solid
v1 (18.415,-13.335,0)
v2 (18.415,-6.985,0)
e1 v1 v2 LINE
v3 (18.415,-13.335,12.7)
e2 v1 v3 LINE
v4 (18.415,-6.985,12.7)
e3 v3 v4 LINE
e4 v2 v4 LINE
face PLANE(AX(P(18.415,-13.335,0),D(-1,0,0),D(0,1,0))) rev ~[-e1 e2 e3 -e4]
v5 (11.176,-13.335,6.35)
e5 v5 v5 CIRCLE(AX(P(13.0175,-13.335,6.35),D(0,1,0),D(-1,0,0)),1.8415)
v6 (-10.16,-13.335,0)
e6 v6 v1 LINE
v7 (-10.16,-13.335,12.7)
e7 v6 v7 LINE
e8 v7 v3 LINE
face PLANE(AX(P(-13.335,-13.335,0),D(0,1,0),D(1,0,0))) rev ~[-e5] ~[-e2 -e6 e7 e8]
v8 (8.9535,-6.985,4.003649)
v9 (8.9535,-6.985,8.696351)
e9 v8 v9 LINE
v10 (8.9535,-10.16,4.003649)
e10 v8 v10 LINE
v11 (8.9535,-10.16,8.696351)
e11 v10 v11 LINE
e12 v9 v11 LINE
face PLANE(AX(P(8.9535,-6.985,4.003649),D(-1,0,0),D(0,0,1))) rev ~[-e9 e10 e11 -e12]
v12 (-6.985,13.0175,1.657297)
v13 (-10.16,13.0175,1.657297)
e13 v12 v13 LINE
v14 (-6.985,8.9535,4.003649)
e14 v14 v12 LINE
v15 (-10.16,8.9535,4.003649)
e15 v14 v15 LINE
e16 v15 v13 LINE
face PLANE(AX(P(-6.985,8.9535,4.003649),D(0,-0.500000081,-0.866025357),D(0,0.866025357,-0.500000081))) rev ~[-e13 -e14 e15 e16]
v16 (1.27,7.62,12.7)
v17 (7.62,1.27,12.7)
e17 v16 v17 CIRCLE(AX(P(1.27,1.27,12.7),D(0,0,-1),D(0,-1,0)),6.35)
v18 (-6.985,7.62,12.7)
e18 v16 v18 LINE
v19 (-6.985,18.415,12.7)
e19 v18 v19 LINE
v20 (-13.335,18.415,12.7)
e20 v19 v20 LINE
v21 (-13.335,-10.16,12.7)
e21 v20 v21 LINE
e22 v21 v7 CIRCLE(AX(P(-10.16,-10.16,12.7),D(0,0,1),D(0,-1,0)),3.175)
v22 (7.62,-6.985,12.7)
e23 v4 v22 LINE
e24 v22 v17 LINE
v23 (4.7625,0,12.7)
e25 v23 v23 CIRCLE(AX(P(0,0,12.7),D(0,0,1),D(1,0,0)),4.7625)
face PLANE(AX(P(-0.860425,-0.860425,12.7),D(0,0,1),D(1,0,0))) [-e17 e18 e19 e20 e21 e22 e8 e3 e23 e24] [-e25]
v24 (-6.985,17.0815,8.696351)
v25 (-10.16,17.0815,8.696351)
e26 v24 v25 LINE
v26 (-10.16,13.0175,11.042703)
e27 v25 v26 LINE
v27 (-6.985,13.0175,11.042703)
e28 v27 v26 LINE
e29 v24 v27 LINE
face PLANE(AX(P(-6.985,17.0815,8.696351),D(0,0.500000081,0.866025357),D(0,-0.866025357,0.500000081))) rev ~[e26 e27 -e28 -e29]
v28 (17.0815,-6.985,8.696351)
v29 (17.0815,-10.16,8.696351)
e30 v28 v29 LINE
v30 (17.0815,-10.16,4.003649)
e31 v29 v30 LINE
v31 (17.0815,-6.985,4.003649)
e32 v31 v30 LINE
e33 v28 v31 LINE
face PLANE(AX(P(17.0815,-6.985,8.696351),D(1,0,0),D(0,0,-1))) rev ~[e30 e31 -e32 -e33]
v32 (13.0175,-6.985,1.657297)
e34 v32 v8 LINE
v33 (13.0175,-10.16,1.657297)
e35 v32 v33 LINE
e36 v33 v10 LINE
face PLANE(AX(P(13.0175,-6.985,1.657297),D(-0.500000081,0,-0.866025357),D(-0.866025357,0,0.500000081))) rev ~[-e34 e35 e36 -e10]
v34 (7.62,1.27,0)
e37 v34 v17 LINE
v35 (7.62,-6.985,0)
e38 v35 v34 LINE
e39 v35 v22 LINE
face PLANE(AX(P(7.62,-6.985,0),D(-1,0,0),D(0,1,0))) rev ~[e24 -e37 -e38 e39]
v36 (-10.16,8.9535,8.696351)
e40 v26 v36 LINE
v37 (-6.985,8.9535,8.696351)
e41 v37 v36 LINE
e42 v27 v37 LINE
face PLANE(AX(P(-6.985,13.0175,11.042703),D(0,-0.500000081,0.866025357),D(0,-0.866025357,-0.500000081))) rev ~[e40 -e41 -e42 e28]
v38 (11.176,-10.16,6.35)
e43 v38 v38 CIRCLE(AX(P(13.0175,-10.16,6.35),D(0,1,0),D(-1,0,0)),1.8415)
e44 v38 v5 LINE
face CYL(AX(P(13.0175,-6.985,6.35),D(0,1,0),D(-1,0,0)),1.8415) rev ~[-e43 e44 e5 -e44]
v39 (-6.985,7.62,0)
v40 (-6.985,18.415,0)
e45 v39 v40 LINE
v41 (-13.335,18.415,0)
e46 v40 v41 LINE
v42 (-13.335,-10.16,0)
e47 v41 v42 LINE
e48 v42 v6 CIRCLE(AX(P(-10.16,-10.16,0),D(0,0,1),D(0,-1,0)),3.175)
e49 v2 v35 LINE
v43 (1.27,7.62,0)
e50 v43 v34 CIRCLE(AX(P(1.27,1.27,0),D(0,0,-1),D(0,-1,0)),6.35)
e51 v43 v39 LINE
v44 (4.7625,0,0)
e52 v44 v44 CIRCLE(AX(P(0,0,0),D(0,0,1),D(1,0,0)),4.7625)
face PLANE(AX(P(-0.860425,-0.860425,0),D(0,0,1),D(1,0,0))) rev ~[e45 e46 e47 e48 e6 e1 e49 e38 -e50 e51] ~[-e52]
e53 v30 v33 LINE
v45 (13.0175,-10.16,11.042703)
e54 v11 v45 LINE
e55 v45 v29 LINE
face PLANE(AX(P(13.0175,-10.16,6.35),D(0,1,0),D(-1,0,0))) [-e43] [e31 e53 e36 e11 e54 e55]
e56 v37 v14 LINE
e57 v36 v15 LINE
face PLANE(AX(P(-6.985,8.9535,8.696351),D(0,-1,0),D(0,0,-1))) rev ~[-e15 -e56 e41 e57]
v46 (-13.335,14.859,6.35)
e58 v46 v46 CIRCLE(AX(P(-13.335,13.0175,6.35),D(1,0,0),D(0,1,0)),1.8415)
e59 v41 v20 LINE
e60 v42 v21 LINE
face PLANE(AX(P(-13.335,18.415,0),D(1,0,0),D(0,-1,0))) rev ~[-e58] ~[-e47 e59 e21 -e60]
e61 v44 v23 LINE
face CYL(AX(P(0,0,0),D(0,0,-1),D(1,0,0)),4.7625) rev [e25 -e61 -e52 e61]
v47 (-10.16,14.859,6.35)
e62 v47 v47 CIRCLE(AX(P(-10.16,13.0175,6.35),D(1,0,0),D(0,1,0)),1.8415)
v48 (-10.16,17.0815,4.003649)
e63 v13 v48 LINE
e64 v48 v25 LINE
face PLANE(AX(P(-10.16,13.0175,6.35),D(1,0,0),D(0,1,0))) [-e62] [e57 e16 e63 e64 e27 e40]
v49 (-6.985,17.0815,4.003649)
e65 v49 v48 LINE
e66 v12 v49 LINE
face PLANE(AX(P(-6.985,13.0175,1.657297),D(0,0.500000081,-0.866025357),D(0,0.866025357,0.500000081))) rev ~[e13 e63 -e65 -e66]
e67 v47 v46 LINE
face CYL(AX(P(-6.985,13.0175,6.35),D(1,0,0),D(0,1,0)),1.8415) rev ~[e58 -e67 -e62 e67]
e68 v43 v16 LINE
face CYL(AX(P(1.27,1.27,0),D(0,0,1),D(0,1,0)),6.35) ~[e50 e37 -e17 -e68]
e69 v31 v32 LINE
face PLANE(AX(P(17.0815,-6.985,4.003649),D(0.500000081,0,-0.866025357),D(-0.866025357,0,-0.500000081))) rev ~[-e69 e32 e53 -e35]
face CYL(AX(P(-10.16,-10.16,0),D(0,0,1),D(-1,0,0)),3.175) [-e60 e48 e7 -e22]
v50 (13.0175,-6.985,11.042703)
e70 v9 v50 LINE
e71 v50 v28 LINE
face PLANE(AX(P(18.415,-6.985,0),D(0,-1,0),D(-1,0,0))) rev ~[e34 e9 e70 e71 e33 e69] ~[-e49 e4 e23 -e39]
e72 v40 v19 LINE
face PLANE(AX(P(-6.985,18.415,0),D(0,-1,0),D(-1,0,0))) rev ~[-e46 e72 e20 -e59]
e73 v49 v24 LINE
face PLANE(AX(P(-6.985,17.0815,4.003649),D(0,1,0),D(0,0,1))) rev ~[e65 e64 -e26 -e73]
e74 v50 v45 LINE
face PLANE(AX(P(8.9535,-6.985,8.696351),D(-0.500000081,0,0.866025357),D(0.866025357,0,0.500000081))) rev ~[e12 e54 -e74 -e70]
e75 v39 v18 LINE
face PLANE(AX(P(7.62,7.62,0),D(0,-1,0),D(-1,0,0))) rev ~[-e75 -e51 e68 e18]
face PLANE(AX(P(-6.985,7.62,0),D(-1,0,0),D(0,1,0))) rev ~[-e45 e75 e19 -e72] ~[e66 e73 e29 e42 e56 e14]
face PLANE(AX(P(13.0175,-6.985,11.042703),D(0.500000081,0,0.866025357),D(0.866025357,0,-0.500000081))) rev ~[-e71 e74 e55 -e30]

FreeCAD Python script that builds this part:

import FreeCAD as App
import Part
import Sketcher
from FreeCAD import Vector
Q = App.Units.Quantity


def edges_at(feature, points):
    """Names of the edges that pass closest to the given points."""
    edges = feature.Shape.Edges
    near = lambda p: min(range(len(edges)), key=lambda i: edges[i].distToShape(Part.Vertex(*p))[0])
    return sorted({f"Edge{near(p) + 1}" for p in points})

doc = App.newDocument("Part")
params = doc.addObject("Spreadsheet::Sheet", "Params")
for row, (alias, value) in enumerate([
    ("sketch1_diameter", "0.375 in"),
    ("sketch1_width", "1.25 in"),
    ("sketch1_width2", "0.425 in"),
    ("pad1_length", "0.5 in"),
    ("fillet_radius", "0.25 in"),
    ("fillet2_radius", "0.125 in"),
    ("sketch2_diameter", "0.145 in"),
    ("pocket1_length", "1 in"),
    ("pocket2_length", "0.125 in"),
    ("sketch4_diameter", "0.145 in"),
    ("pocket3_length", "1 in"),
    ("pocket4_length", "0.125 in"),
], start=1):
    params.set(f"A{row}", alias)
    params.set(f"B{row}", "=" + value)
    params.setAlias(f"B{row}", alias)

body = doc.addObject("PartDesign::Body", "Body")

sketch1 = body.newObject("Sketcher::SketchObject", "Sketch")
sketch1.AttachmentSupport = (doc.getObject("XY_Plane"), [""])
sketch1.MapMode = "FlatFace"
sketch1.addGeometry([
    Part.LineSegment(Vector(-13.3, 18.4, 0), Vector(-13.3, -13.3, 0)),
    Part.LineSegment(Vector(-13.3, -13.3, 0), Vector(18.4, -13.3, 0)),
    Part.LineSegment(Vector(18.4, -13.3, 0), Vector(18.4, -7, 0)),
    Part.LineSegment(Vector(18.4, -7, 0), Vector(7.6, -7, 0)),
    Part.LineSegment(Vector(7.6, -7, 0), Vector(7.6, 7.6, 0)),
    Part.LineSegment(Vector(7.6, 7.6, 0), Vector(-7, 7.6, 0)),
    Part.LineSegment(Vector(-7, 7.6, 0), Vector(-7, 18.4, 0)),
    Part.LineSegment(Vector(-7, 18.4, 0), Vector(-13.3, 18.4, 0)),
    Part.Circle(Vector(0, 0, 0), Vector(0, 0, 1), 4.8),
], False)
sketch1.addConstraint([
    Sketcher.Constraint("Coincident", 0, 2, 1, 1),
    Sketcher.Constraint("Coincident", 1, 2, 2, 1),
    Sketcher.Constraint("Coincident", 2, 2, 3, 1),
    Sketcher.Constraint("Coincident", 3, 2, 4, 1),
    Sketcher.Constraint("Coincident", 4, 2, 5, 1),
    Sketcher.Constraint("Coincident", 5, 2, 6, 1),
    Sketcher.Constraint("Coincident", 6, 2, 7, 1),
    Sketcher.Constraint("Coincident", 7, 2, 0, 1),
    Sketcher.Constraint("Vertical", 0),
    Sketcher.Constraint("Horizontal", 1),
    Sketcher.Constraint("Vertical", 2),
    Sketcher.Constraint("Horizontal", 3),
    Sketcher.Constraint("Vertical", 4),
    Sketcher.Constraint("Horizontal", 5),
    Sketcher.Constraint("Vertical", 6),
    Sketcher.Constraint("Horizontal", 7),
    Sketcher.Constraint("Coincident", 8, 3, -1, 1),
    Sketcher.Constraint("Equal", 1, 0),
    Sketcher.Constraint("Equal", 7, 2),
    Sketcher.Constraint("Equal", 5, 4),
    Sketcher.Constraint("Diameter", 8, Q("0.375 in")),
    Sketcher.Constraint("DistanceX", 5, 2, 2, 2, Q("1 in")),
    Sketcher.Constraint("DistanceX", 1, 1, 1, 2, Q("1.25 in")),
    Sketcher.Constraint("DistanceX", -1, 1, 3, 2, Q("0.3 in")),
    Sketcher.Constraint("DistanceY", -1, 1, 4, 2, Q("0.3 in")),
    Sketcher.Constraint("DistanceX", 3, 2, 3, 1, Q("0.425 in")),
])
sketch1.setExpression("Constraints[20]", "Params.sketch1_diameter")
sketch1.setExpression("Constraints[22]", "Params.sketch1_width")
sketch1.setExpression("Constraints[25]", "Params.sketch1_width2")
pad1 = body.newObject("PartDesign::Pad", "Pad")
pad1.Profile = sketch1
pad1.setExpression("Length", "Params.pad1_length")
doc.recompute()

fillet = body.newObject("PartDesign::Fillet", "Fillet")
fillet.Base = (pad1, edges_at(pad1, [(7.62, 7.62, 6.35)]))
fillet.setExpression("Radius", "Params.fillet_radius")
doc.recompute()

fillet2 = body.newObject("PartDesign::Fillet", "Fillet001")
fillet2.Base = (fillet, edges_at(fillet, [(-13.335, -13.335, 6.35)]))
fillet2.setExpression("Radius", "Params.fillet2_radius")

sketch2 = body.newObject("Sketcher::SketchObject", "Sketch001")
sketch2.AttachmentSupport = (doc.getObject("XZ_Plane"), [""])
sketch2.MapMode = "FlatFace"
sketch2.AttachmentOffset = App.Placement(Vector(0, 0, 0.275 * 25.4), App.Rotation())
sketch2.addGeometry(Part.Circle(Vector(13, 6.3, 0), Vector(0, 0, 1), 1.8), False)
sketch2.addConstraint([
    Sketcher.Constraint("Diameter", 0, Q("0.145 in")),
    Sketcher.Constraint("DistanceY", -1, 1, 0, 3, Q("0.25 in")),
    Sketcher.Constraint("DistanceX", -1, 1, 0, 3, Q("0.5125 in")),
])
sketch2.setExpression("Constraints[0]", "Params.sketch2_diameter")
pocket1 = body.newObject("PartDesign::Pocket", "Pocket")
pocket1.Profile = sketch2
pocket1.setExpression("Length", "Params.pocket1_length")
pocket1.Reversed = True

sketch3 = body.newObject("Sketcher::SketchObject", "Sketch002")
sketch3.AttachmentSupport = (doc.getObject("XZ_Plane"), [""])
sketch3.MapMode = "FlatFace"
sketch3.AttachmentOffset = App.Placement(Vector(0, 0, 0.275 * 25.4), App.Rotation())
sketch3.addGeometry([
    Part.LineSegment(Vector(17.1, 4, 0), Vector(13, 1.7, 0)),
    Part.LineSegment(Vector(13, 1.7, 0), Vector(9, 4, 0)),
    Part.LineSegment(Vector(9, 4, 0), Vector(9, 8.7, 0)),
    Part.LineSegment(Vector(9, 8.7, 0), Vector(13, 11, 0)),
    Part.LineSegment(Vector(13, 11, 0), Vector(17.1, 8.7, 0)),
    Part.LineSegment(Vector(17.1, 8.7, 0), Vector(17.1, 4, 0)),
], False)
sketch3.addConstraint([
    Sketcher.Constraint("Coincident", 0, 2, 1, 1),
    Sketcher.Constraint("Coincident", 1, 2, 2, 1),
    Sketcher.Constraint("Coincident", 2, 2, 3, 1),
    Sketcher.Constraint("Coincident", 3, 2, 4, 1),
    Sketcher.Constraint("Coincident", 4, 2, 5, 1),
    Sketcher.Constraint("Coincident", 5, 2, 0, 1),
    Sketcher.Constraint("Vertical", 2),
    Sketcher.Constraint("Vertical", 5),
    Sketcher.Constraint("Parallel", 0, 3),
    Sketcher.Constraint("Parallel", 1, 4),
    Sketcher.Constraint("Horizontal", 2, 2, 4, 2),
    Sketcher.Constraint("Horizontal", 1, 2, 5, 2),
    Sketcher.Constraint("Vertical", 0, 2, 3, 2),
    Sketcher.Constraint("Angle", 0, Q("-149.999995 deg")),
    Sketcher.Constraint("DistanceX", 1, 2, 0, 2, Q("0.16 in")),
    Sketcher.Constraint("DistanceY", 2, 1, 2, 2, 4.692702),
    Sketcher.Constraint("DistanceX", -1, 1, 0, 2, Q("0.5125 in")),
    Sketcher.Constraint("DistanceY", -1, 1, 1, 2, 4.003649),
])
pocket2 = body.newObject("PartDesign::Pocket", "Pocket001")
pocket2.Profile = sketch3
pocket2.setExpression("Length", "Params.pocket2_length")
pocket2.Reversed = True

sketch4 = body.newObject("Sketcher::SketchObject", "Sketch003")
sketch4.AttachmentSupport = (doc.getObject("YZ_Plane"), [""])
sketch4.MapMode = "FlatFace"
sketch4.AttachmentOffset = App.Placement(Vector(0, 0, -0.275 * 25.4), App.Rotation())
sketch4.addGeometry(Part.Circle(Vector(13, 6.3, 0), Vector(0, 0, 1), 1.8), False)
sketch4.addConstraint([
    Sketcher.Constraint("Diameter", 0, Q("0.145 in")),
    Sketcher.Constraint("DistanceY", -1, 1, 0, 3, Q("0.25 in")),
    Sketcher.Constraint("DistanceX", -1, 1, 0, 3, Q("0.5125 in")),
])
sketch4.setExpression("Constraints[0]", "Params.sketch4_diameter")
pocket3 = body.newObject("PartDesign::Pocket", "Pocket002")
pocket3.Profile = sketch4
pocket3.setExpression("Length", "Params.pocket3_length")

sketch5 = body.newObject("Sketcher::SketchObject", "Sketch004")
sketch5.AttachmentSupport = (doc.getObject("YZ_Plane"), [""])
sketch5.MapMode = "FlatFace"
sketch5.AttachmentOffset = App.Placement(Vector(0, 0, -0.275 * 25.4), App.Rotation())
sketch5.addGeometry([
    Part.LineSegment(Vector(9, 8.7, 0), Vector(9, 4, 0)),
    Part.LineSegment(Vector(9, 4, 0), Vector(13, 1.7, 0)),
    Part.LineSegment(Vector(13, 1.7, 0), Vector(17.1, 4, 0)),
    Part.LineSegment(Vector(17.1, 4, 0), Vector(17.1, 8.7, 0)),
    Part.LineSegment(Vector(17.1, 8.7, 0), Vector(13, 11, 0)),
    Part.LineSegment(Vector(13, 11, 0), Vector(9, 8.7, 0)),
], False)
sketch5.addConstraint([
    Sketcher.Constraint("Coincident", 0, 2, 1, 1),
    Sketcher.Constraint("Coincident", 1, 2, 2, 1),
    Sketcher.Constraint("Coincident", 2, 2, 3, 1),
    Sketcher.Constraint("Coincident", 3, 2, 4, 1),
    Sketcher.Constraint("Coincident", 4, 2, 5, 1),
    Sketcher.Constraint("Coincident", 5, 2, 0, 1),
    Sketcher.Constraint("Vertical", 0),
    Sketcher.Constraint("Vertical", 3),
    Sketcher.Constraint("Parallel", 1, 4),
    Sketcher.Constraint("Parallel", 2, 5),
    Sketcher.Constraint("Horizontal", 0, 2, 2, 2),
    Sketcher.Constraint("Horizontal", 3, 2, 5, 2),
    Sketcher.Constraint("Vertical", 1, 2, 4, 2),
    Sketcher.Constraint("Angle", 1, Q("-30.000005 deg")),
    Sketcher.Constraint("DistanceX", 0, 2, 1, 2, Q("0.16 in")),
    Sketcher.Constraint("DistanceY", 0, 2, 0, 1, 4.692702),
    Sketcher.Constraint("DistanceX", -1, 1, 0, 2, Q("0.3525 in")),
    Sketcher.Constraint("DistanceY", -1, 1, 0, 2, 4.003649),
])
pocket4 = body.newObject("PartDesign::Pocket", "Pocket003")
pocket4.Profile = sketch5
pocket4.setExpression("Length", "Params.pocket4_length")

doc.recompute()
